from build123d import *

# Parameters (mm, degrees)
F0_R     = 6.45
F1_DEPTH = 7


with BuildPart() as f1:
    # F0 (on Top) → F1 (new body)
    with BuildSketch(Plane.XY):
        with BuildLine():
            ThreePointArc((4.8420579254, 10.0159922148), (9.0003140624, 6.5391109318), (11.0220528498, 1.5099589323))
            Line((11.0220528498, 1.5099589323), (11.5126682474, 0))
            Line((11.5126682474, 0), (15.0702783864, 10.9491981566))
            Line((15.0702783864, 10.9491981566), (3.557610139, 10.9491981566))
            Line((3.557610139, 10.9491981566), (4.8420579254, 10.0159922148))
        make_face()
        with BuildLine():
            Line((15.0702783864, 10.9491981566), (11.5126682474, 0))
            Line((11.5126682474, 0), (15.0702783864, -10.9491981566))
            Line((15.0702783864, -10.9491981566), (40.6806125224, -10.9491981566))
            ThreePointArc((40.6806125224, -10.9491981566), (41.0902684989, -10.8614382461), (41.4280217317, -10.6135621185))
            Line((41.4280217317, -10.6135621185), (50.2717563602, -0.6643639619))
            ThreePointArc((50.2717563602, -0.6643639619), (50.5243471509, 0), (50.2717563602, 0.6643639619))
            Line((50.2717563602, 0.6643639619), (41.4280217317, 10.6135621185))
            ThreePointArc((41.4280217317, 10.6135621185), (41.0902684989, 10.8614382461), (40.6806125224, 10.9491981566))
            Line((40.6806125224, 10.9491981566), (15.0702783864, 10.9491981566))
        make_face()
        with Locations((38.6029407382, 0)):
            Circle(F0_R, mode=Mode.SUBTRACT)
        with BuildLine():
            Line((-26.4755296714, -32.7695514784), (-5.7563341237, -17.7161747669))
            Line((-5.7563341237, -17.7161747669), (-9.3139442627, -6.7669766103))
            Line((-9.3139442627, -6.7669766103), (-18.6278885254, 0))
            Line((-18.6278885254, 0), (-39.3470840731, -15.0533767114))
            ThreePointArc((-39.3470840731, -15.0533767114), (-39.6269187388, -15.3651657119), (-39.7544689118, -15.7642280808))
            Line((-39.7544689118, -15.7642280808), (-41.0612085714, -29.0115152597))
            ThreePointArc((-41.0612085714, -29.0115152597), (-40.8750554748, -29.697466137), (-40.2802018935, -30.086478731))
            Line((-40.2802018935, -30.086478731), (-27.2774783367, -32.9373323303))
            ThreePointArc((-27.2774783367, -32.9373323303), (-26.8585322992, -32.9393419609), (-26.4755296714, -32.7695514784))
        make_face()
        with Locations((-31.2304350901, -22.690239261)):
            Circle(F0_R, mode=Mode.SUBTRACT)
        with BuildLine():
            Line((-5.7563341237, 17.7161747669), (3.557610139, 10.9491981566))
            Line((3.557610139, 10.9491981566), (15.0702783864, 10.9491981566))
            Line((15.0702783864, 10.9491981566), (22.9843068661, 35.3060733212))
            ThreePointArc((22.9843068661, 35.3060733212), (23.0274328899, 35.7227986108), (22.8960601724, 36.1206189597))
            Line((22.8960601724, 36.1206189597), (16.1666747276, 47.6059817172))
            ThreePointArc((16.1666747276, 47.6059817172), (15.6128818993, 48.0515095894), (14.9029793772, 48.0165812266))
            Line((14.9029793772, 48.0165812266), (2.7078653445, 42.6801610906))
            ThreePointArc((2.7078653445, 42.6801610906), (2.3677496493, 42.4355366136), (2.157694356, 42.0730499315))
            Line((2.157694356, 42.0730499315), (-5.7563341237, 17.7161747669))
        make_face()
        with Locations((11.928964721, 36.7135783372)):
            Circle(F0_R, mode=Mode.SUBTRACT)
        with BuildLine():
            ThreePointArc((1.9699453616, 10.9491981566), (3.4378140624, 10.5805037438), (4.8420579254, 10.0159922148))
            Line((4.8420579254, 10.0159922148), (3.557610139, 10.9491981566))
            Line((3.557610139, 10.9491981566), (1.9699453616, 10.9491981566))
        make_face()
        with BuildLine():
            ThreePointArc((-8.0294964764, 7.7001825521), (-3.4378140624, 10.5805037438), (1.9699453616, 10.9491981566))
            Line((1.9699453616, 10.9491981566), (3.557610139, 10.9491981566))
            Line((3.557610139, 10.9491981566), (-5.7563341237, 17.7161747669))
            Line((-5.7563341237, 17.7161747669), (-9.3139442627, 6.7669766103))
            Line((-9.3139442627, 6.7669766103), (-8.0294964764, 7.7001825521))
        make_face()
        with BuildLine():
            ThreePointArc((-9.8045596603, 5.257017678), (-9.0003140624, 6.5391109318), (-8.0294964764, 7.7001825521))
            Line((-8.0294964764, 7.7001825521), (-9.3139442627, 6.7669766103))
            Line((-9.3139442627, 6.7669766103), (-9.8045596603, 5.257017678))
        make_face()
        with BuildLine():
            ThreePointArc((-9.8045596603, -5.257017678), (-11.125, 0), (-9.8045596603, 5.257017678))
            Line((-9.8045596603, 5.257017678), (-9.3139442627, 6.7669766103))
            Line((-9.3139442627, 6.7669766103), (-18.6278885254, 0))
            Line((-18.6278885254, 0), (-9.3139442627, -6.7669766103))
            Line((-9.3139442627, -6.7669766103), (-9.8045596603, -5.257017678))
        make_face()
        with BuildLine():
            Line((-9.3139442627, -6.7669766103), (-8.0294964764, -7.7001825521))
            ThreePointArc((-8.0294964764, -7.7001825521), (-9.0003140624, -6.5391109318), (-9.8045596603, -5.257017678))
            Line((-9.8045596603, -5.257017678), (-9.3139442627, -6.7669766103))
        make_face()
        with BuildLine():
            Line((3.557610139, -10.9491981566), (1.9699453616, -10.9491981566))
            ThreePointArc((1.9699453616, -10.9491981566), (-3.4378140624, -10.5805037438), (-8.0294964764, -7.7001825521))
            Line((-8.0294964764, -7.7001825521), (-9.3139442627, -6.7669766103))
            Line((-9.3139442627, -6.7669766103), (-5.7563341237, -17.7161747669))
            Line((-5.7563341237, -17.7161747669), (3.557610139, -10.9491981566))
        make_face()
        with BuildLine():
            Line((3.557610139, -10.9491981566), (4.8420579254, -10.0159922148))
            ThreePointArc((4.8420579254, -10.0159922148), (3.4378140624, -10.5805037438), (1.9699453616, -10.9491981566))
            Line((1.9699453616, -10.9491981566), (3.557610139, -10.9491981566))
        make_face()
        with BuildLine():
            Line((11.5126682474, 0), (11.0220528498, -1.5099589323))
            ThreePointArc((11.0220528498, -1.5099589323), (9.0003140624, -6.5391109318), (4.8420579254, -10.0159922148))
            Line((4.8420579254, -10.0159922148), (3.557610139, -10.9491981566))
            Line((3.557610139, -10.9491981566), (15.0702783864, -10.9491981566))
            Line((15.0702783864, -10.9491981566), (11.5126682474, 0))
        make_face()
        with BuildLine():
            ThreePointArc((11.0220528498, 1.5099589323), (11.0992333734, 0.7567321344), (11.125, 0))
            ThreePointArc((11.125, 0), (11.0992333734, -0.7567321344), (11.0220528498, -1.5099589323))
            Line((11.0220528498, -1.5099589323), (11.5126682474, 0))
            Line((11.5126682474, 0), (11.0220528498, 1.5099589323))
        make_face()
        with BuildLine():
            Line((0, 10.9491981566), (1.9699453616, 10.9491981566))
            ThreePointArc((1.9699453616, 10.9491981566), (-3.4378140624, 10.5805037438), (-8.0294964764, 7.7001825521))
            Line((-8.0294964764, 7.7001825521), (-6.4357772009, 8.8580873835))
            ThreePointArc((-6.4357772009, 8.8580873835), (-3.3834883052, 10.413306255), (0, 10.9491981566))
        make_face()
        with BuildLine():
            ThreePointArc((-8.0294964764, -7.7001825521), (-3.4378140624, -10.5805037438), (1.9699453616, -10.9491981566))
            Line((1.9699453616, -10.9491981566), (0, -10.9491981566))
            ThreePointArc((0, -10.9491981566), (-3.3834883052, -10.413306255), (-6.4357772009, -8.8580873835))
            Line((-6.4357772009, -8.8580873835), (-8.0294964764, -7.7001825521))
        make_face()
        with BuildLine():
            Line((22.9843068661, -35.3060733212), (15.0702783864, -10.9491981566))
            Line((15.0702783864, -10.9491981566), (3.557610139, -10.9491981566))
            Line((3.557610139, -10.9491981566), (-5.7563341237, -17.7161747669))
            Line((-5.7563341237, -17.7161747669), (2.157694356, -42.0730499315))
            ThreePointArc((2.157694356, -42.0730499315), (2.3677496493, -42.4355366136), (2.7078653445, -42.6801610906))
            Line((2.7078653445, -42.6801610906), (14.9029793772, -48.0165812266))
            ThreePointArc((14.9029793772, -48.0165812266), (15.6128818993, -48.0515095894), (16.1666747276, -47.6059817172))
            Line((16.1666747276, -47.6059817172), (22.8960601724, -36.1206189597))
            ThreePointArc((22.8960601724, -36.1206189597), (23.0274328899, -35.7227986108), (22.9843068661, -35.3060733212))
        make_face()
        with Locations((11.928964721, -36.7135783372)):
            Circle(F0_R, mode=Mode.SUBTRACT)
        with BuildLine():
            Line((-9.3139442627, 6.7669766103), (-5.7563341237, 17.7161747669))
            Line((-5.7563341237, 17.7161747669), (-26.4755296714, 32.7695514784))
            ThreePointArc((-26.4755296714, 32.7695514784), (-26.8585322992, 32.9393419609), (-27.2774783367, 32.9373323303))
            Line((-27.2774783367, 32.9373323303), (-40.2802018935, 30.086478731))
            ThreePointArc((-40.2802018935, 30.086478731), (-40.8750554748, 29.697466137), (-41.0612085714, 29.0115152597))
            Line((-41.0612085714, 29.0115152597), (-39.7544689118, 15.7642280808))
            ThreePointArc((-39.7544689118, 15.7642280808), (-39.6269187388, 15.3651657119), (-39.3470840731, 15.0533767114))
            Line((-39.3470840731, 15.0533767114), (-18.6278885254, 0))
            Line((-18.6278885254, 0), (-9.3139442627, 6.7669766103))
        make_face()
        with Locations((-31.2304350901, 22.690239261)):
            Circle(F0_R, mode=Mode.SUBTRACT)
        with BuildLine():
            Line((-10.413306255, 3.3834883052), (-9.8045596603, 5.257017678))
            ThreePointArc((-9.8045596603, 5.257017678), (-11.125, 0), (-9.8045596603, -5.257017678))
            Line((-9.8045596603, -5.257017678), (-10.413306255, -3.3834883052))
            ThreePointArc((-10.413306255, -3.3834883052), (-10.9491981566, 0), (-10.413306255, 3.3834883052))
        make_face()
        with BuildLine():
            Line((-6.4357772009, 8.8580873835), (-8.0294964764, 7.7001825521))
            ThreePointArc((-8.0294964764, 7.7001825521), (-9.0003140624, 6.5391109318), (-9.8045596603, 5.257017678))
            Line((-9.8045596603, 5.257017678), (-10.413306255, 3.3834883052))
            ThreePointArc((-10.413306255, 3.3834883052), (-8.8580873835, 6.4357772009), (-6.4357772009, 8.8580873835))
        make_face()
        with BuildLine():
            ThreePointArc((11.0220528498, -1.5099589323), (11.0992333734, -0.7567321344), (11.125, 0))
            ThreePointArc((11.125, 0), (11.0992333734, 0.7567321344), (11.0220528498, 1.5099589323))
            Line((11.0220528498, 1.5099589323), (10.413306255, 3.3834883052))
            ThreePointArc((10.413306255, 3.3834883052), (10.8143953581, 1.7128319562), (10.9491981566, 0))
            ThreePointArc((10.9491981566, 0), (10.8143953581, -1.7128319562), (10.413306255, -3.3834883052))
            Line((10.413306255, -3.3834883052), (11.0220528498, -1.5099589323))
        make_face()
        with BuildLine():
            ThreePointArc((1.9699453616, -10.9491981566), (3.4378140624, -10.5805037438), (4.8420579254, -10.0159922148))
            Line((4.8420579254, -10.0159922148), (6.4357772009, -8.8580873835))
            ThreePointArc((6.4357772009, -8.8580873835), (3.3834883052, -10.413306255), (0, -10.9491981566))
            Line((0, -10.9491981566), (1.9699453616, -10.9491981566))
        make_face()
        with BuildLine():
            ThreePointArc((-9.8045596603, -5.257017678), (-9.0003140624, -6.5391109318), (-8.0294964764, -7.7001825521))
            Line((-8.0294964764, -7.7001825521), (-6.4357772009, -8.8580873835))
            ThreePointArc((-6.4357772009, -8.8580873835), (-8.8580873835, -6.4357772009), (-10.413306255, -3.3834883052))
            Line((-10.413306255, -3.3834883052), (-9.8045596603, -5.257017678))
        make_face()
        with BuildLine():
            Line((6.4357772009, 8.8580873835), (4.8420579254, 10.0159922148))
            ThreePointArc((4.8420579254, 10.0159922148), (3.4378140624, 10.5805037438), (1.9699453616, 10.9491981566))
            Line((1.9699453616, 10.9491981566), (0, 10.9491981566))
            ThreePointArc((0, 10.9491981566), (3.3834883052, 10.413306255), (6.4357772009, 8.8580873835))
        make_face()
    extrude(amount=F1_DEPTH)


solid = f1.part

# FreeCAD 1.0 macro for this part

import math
import FreeCAD as App
import Part
import Sketcher
Q = App.Units.Quantity

doc = App.newDocument("Part")
params = doc.addObject("Spreadsheet::Sheet", "Params")
for row, (alias, value) in enumerate([
    ("sketch1_radius", "1 mm"),
    ("sketch1_diameter", "12.9 mm"),
    ("pad1_length", "7 mm"),
], start=1):
    params.set(f"A{row}", alias)
    params.set(f"B{row}", "=" + value)
    params.setAlias(f"B{row}", alias)

body = doc.addObject("PartDesign::Body", "Body")

sketch1 = body.newObject("Sketcher::SketchObject", "Sketch")
sketch1.AttachmentSupport = (doc.getObject("XY_Plane"), [""])
sketch1.MapMode = "FlatFace"
sketch1.addGeometry([
    Part.LineSegment(App.Vector(16.166675, -47.605982, 0), App.Vector(22.89606, -36.120619, 0)),
    Part.ArcOfCircle(Part.Circle(App.Vector(22.03325, -35.61509, 0), App.Vector(0, 0, 1), 1), math.radians(-30.366451), math.radians(18)),
    Part.LineSegment(App.Vector(22.984307, -35.306073, 0), App.Vector(15.070278, -10.949198, 0)),
    Part.LineSegment(App.Vector(15.070278, -10.949198, 0), App.Vector(40.680613, -10.949198, 0)),
    Part.ArcOfCircle(Part.Circle(App.Vector(40.680613, -9.949198, 0), App.Vector(0, 0, 1), 1), math.radians(-90), math.radians(-41.633549)),
    Part.LineSegment(App.Vector(41.428022, -10.613562, 0), App.Vector(50.271756, -0.664364, 0)),
    Part.ArcOfCircle(Part.Circle(App.Vector(49.524347, 0, 0), App.Vector(0, 0, 1), 1), math.radians(-41.633549), math.radians(41.633549)),
    Part.LineSegment(App.Vector(50.271756, 0.664364, 0), App.Vector(41.428022, 10.613562, 0)),
    Part.ArcOfCircle(Part.Circle(App.Vector(40.680613, 9.949198, 0), App.Vector(0, 0, 1), 1), math.radians(41.633549), math.radians(90)),
    Part.LineSegment(App.Vector(40.680613, 10.949198, 0), App.Vector(15.070278, 10.949198, 0)),
    Part.LineSegment(App.Vector(15.070278, 10.949198, 0), App.Vector(22.984307, 35.306073, 0)),
    Part.ArcOfCircle(Part.Circle(App.Vector(22.03325, 35.61509, 0), App.Vector(0, 0, 1), 1), math.radians(-18), math.radians(30.366451)),
    Part.LineSegment(App.Vector(22.89606, 36.120619, 0), App.Vector(16.166675, 47.605982, 0)),
    Part.ArcOfCircle(Part.Circle(App.Vector(15.303865, 47.100453, 0), App.Vector(0, 0, 1), 1), math.radians(30.366451), math.radians(113.633549)),
    Part.LineSegment(App.Vector(14.902979, 48.016581, 0), App.Vector(2.707865, 42.680161, 0)),
    Part.ArcOfCircle(Part.Circle(App.Vector(3.108751, 41.764033, 0), App.Vector(0, 0, 1), 1), math.radians(113.633549), math.radians(162)),
    Part.LineSegment(App.Vector(2.157694, 42.07305, 0), App.Vector(-5.756334, 17.716175, 0)),
    Part.LineSegment(App.Vector(-5.756334, 17.716175, 0), App.Vector(-26.47553, 32.769551, 0)),
    Part.ArcOfCircle(Part.Circle(App.Vector(-27.063315, 31.960534, 0), App.Vector(0, 0, 1), 1), math.radians(54), math.radians(102.366451)),
    Part.LineSegment(App.Vector(-27.277478, 32.937332, 0), App.Vector(-40.280202, 30.086479, 0)),
    Part.ArcOfCircle(Part.Circle(App.Vector(-40.066038, 29.109681, 0), App.Vector(0, 0, 1), 1), math.radians(102.366451), math.radians(185.633549)),
    Part.LineSegment(App.Vector(-41.061209, 29.011515, 0), App.Vector(-39.754469, 15.764228, 0)),
    Part.ArcOfCircle(Part.Circle(App.Vector(-38.759299, 15.862394, 0), App.Vector(0, 0, 1), 1), math.radians(-174.366451), math.radians(-126)),
    Part.LineSegment(App.Vector(-39.347084, 15.053377, 0), App.Vector(-18.627889, 0, 0)),
    Part.LineSegment(App.Vector(-18.627889, 0, 0), App.Vector(-39.347084, -15.053377, 0)),
    Part.ArcOfCircle(Part.Circle(App.Vector(-38.759299, -15.862394, 0), App.Vector(0, 0, 1), 1), math.radians(126), math.radians(174.366451)),
    Part.LineSegment(App.Vector(-39.754469, -15.764228, 0), App.Vector(-41.061209, -29.011515, 0)),
    Part.ArcOfCircle(Part.Circle(App.Vector(-40.066038, -29.109681, 0), App.Vector(0, 0, 1), 1), math.radians(174.366451), math.radians(257.633549)),
    Part.LineSegment(App.Vector(-40.280202, -30.086479, 0), App.Vector(-27.277478, -32.937332, 0)),
    Part.ArcOfCircle(Part.Circle(App.Vector(-27.063315, -31.960534, 0), App.Vector(0, 0, 1), 1), math.radians(-102.366451), math.radians(-54)),
    Part.LineSegment(App.Vector(-26.47553, -32.769551, 0), App.Vector(-5.756334, -17.716175, 0)),
    Part.LineSegment(App.Vector(-5.756334, -17.716175, 0), App.Vector(2.157694, -42.07305, 0)),
    Part.ArcOfCircle(Part.Circle(App.Vector(3.108751, -41.764033, 0), App.Vector(0, 0, 1), 1), math.radians(-162), math.radians(-113.633549)),
    Part.LineSegment(App.Vector(2.707865, -42.680161, 0), App.Vector(14.902979, -48.016581, 0)),
    Part.ArcOfCircle(Part.Circle(App.Vector(15.303865, -47.100453, 0), App.Vector(0, 0, 1), 1), math.radians(-113.633549), math.radians(-30.366451)),
    Part.Circle(App.Vector(-31.230435, -22.690239, 0), App.Vector(0, 0, 1), 6.45),
    Part.LineSegment(App.Vector(4.842058, -10.015992, 0), App.Vector(6.435777, -8.858087, 0)),
    Part.ArcOfCircle(Part.Circle(App.Vector(0, 0, 0), App.Vector(0, 0, 1), 10.949198), math.radians(-90), math.radians(-54)),
    Part.ArcOfCircle(Part.Circle(App.Vector(0, 0, 0), App.Vector(0, 0, 1), 10.949198), math.radians(-126), math.radians(-90)),
    Part.ArcOfCircle(Part.Circle(App.Vector(0, 0, 0), App.Vector(0, 0, 1), 10.949198), math.radians(-162), math.radians(-126)),
    Part.ArcOfCircle(Part.Circle(App.Vector(0, 0, 0), App.Vector(0, 0, 1), 10.949198), math.radians(162), math.radians(198)),
    Part.ArcOfCircle(Part.Circle(App.Vector(0, 0, 0), App.Vector(0, 0, 1), 10.949198), math.radians(126), math.radians(162)),
    Part.ArcOfCircle(Part.Circle(App.Vector(0, 0, 0), App.Vector(0, 0, 1), 10.949198), math.radians(90), math.radians(126)),
    Part.ArcOfCircle(Part.Circle(App.Vector(0, 0, 0), App.Vector(0, 0, 1), 10.949198), math.radians(54), math.radians(90)),
    Part.LineSegment(App.Vector(6.435777, 8.858087, 0), App.Vector(4.842058, 10.015992, 0)),
    Part.ArcOfCircle(Part.Circle(App.Vector(0, 0, 0), App.Vector(0, 0, 1), 11.125), math.radians(7.80064), math.radians(64.19936)),
    Part.LineSegment(App.Vector(11.022053, 1.509959, 0), App.Vector(10.413306, 3.383488, 0)),
    Part.ArcOfCircle(Part.Circle(App.Vector(0, 0, 0), App.Vector(0, 0, 1), 10.949198), math.radians(0), math.radians(18)),
    Part.ArcOfCircle(Part.Circle(App.Vector(0, 0, 0), App.Vector(0, 0, 1), 10.949198), math.radians(-18), math.radians(0)),
    Part.LineSegment(App.Vector(10.413306, -3.383488, 0), App.Vector(11.022053, -1.509959, 0)),
    Part.ArcOfCircle(Part.Circle(App.Vector(0, 0, 0), App.Vector(0, 0, 1), 11.125), math.radians(-64.19936), math.radians(-7.80064)),
    Part.Circle(App.Vector(-31.230435, 22.690239, 0), App.Vector(0, 0, 1), 6.45),
    Part.Circle(App.Vector(38.602941, 0, 0), App.Vector(0, 0, 1), 6.45),
    Part.Circle(App.Vector(11.928965, 36.713578, 0), App.Vector(0, 0, 1), 6.45),
    Part.Circle(App.Vector(11.928965, -36.713578, 0), App.Vector(0, 0, 1), 6.45),
], False)
sketch1.addConstraint([
    Sketcher.Constraint("Tangent", 0, 2, 1, 1),
    Sketcher.Constraint("Tangent", 1, 2, 2, 1),
    Sketcher.Constraint("Coincident", 2, 2, 3, 1),
    Sketcher.Constraint("Tangent", 3, 2, 4, 1),
    Sketcher.Constraint("Tangent", 4, 2, 5, 1),
    Sketcher.Constraint("Tangent", 5, 2, 6, 1),
    Sketcher.Constraint("Tangent", 6, 2, 7, 1),
    Sketcher.Constraint("Tangent", 7, 2, 8, 1),
    Sketcher.Constraint("Tangent", 8, 2, 9, 1),
    Sketcher.Constraint("Coincident", 9, 2, 10, 1),
    Sketcher.Constraint("Tangent", 10, 2, 11, 1),
    Sketcher.Constraint("Tangent", 11, 2, 12, 1),
    Sketcher.Constraint("Tangent", 12, 2, 13, 1),
    Sketcher.Constraint("Tangent", 13, 2, 14, 1),
    Sketcher.Constraint("Tangent", 14, 2, 15, 1),
    Sketcher.Constraint("Tangent", 15, 2, 16, 1),
    Sketcher.Constraint("Coincident", 16, 2, 17, 1),
    Sketcher.Constraint("Tangent", 17, 2, 18, 1),
    Sketcher.Constraint("Tangent", 18, 2, 19, 1),
    Sketcher.Constraint("Tangent", 19, 2, 20, 1),
    Sketcher.Constraint("Tangent", 20, 2, 21, 1),
    Sketcher.Constraint("Tangent", 21, 2, 22, 1),
    Sketcher.Constraint("Tangent", 22, 2, 23, 1),
    Sketcher.Constraint("Coincident", 23, 2, 24, 1),
    Sketcher.Constraint("Tangent", 24, 2, 25, 1),
    Sketcher.Constraint("Tangent", 25, 2, 26, 1),
    Sketcher.Constraint("Tangent", 26, 2, 27, 1),
    Sketcher.Constraint("Tangent", 27, 2, 28, 1),
    Sketcher.Constraint("Tangent", 28, 2, 29, 1),
    Sketcher.Constraint("Tangent", 29, 2, 30, 1),
    Sketcher.Constraint("Coincident", 30, 2, 31, 1),
    Sketcher.Constraint("Tangent", 31, 2, 32, 1),
    Sketcher.Constraint("Tangent", 32, 2, 33, 1),
    Sketcher.Constraint("Tangent", 33, 2, 34, 1),
    Sketcher.Constraint("Tangent", 34, 2, 0, 1),
    Sketcher.Constraint("Tangent", 36, 2, 37, 2),
    Sketcher.Constraint("Tangent", 37, 1, 38, 2),
    Sketcher.Constraint("Tangent", 38, 1, 39, 2),
    Sketcher.Constraint("Tangent", 39, 1, 40, 2),
    Sketcher.Constraint("Tangent", 40, 1, 41, 2),
    Sketcher.Constraint("Tangent", 41, 1, 42, 2),
    Sketcher.Constraint("Tangent", 42, 1, 43, 2),
    Sketcher.Constraint("Tangent", 43, 1, 44, 1),
    Sketcher.Constraint("Coincident", 44, 2, 45, 2),
    Sketcher.Constraint("Coincident", 45, 1, 46, 1),
    Sketcher.Constraint("Tangent", 46, 2, 47, 2),
    Sketcher.Constraint("Tangent", 47, 1, 48, 2),
    Sketcher.Constraint("Tangent", 48, 1, 49, 1),
    Sketcher.Constraint("Coincident", 49, 2, 50, 2),
    Sketcher.Constraint("Coincident", 50, 1, 36, 1),
    Sketcher.Constraint("Horizontal", 3),
    Sketcher.Constraint("Horizontal", 9),
    Sketcher.Constraint("Coincident", 37, 3, -1, 1),
    Sketcher.Constraint("Coincident", 39, 3, -1, 1),
    Sketcher.Constraint("Coincident", 41, 3, -1, 1),
    Sketcher.Constraint("Coincident", 43, 3, -1, 1),
    Sketcher.Constraint("Coincident", 45, 3, -1, 1),
    Sketcher.Constraint("Coincident", 47, 3, -1, 1),
    Sketcher.Constraint("Coincident", 50, 3, -1, 1),
    Sketcher.Constraint("Equal", 1, 4),
    Sketcher.Constraint("Equal", 4, 6),
    Sketcher.Constraint("Equal", 6, 8),
    Sketcher.Constraint("Equal", 8, 11),
    Sketcher.Constraint("Equal", 11, 13),
    Sketcher.Constraint("Equal", 13, 15),
    Sketcher.Constraint("Equal", 15, 18),
    Sketcher.Constraint("Equal", 18, 20),
    Sketcher.Constraint("Equal", 20, 22),
    Sketcher.Constraint("Equal", 22, 25),
    Sketcher.Constraint("Equal", 25, 27),
    Sketcher.Constraint("Equal", 27, 29),
    Sketcher.Constraint("Equal", 29, 32),
    Sketcher.Constraint("Equal", 32, 34),
    Sketcher.Constraint("Equal", 43, 47),
    Sketcher.Constraint("Equal", 47, 48),
    Sketcher.Constraint("Equal", 45, 50),
    Sketcher.Constraint("Equal", 35, 51),
    Sketcher.Constraint("Equal", 51, 52),
    Sketcher.Constraint("Equal", 52, 53),
    Sketcher.Constraint("Equal", 53, 54),
    Sketcher.Constraint("Symmetric", 4, 3, 8, 3, -1),
    Sketcher.Constraint("Symmetric", 1, 3, 11, 3, -1),
    Sketcher.Constraint("Symmetric", 22, 3, 25, 3, -1),
    Sketcher.Constraint("Symmetric", 20, 3, 27, 3, -1),
    Sketcher.Constraint("Symmetric", 18, 3, 29, 3, -1),
    Sketcher.Constraint("Symmetric", 15, 3, 32, 3, -1),
    Sketcher.Constraint("Symmetric", 13, 3, 34, 3, -1),
    Sketcher.Constraint("Symmetric", 35, 3, 51, 3, -1),
    Sketcher.Constraint("Symmetric", 53, 3, 54, 3, -1),
    Sketcher.Constraint("Symmetric", 16, 2, 30, 2, -1),
    Sketcher.Constraint("PointOnObject", 6, 3, -1),
    Sketcher.Constraint("PointOnObject", 52, 3, -1),
    Sketcher.Constraint("PointOnObject", 23, 2, -1),
    Sketcher.Constraint("PointOnObject", 37, 1, -2),
    Sketcher.Constraint("PointOnObject", 42, 1, -2),
    Sketcher.Constraint("PointOnObject", 47, 1, -1),
    Sketcher.Constraint("Parallel", 10, 16),
    Sketcher.Constraint("Parallel", 17, 23),
    Sketcher.Constraint("Parallel", 2, 31),
    Sketcher.Constraint("Parallel", 30, 36),
    Sketcher.Constraint("Parallel", 23, 44),
    Sketcher.Constraint("Parallel", 31, 46),
    Sketcher.Constraint("Parallel", 16, 49),
    Sketcher.Constraint("Horizontal", 3, 2, 37, 1),
    Sketcher.Constraint("Horizontal", 36, 2, 38, 1),
    Sketcher.Constraint("Horizontal", 41, 1, 43, 1),
    Sketcher.Constraint("Horizontal", 40, 1, 46, 2),
    Sketcher.Constraint("Horizontal", 39, 1, 48, 1),
    Sketcher.Constraint("Equal", 0, 5),
    Sketcher.Constraint("Equal", 12, 14),
    Sketcher.Constraint("Equal", 10, 16),
    Sketcher.Constraint("Equal", 16, 17),
    Sketcher.Constraint("Equal", 14, 19),
    Sketcher.Constraint("Equal", 19, 21),
    Sketcher.Constraint("Equal", 17, 23),
    Sketcher.Constraint("Radius", 1, Q("1 mm")),
    Sketcher.Constraint("Diameter", 35, Q("12.9 mm")),
    Sketcher.Constraint("Angle", 2, Q("108 deg")),
    Sketcher.Constraint("Angle", 17, Q("144 deg")),
    Sketcher.Constraint("Radius", 45, Q("11.125 mm")),
    Sketcher.Constraint("Radius", 37, Q("10.949198 mm")),
    Sketcher.Constraint("DistanceX", 22, 3, -1, 1, Q("38.759299 mm")),
    Sketcher.Constraint("DistanceX", 19, 2, -1, 1, Q("40.280202 mm")),
    Sketcher.Constraint("Distance", 0, Q("13.311581 mm")),
    Sketcher.Constraint("DistanceX", 3, 1, 3, 2, Q("25.610334 mm")),
    Sketcher.Constraint("DistanceX", -1, 1, 1, 3, Q("22.03325 mm")),
    Sketcher.Constraint("DistanceY", 1, 3, -1, 1, Q("35.61509 mm")),
    Sketcher.Constraint("DistanceX", -1, 1, 15, 3, Q("3.108751 mm")),
    Sketcher.Constraint("DistanceY", 35, 3, -1, 1, Q("22.690239 mm")),
    Sketcher.Constraint("DistanceX", -1, 1, 52, 3, Q("38.602941 mm")),
    Sketcher.Constraint("DistanceY", -1, 1, 53, 3, Q("36.713578 mm")),
    Sketcher.Constraint("DistanceX", 35, 3, -1, 1, Q("31.230435 mm")),
    Sketcher.Constraint("DistanceX", -1, 1, 53, 3, Q("11.928965 mm")),
])
sketch1.setExpression("Constraints[115]", "Params.sketch1_radius")
sketch1.setExpression("Constraints[116]", "Params.sketch1_diameter")
pad1 = body.newObject("PartDesign::Pad", "Pad")
pad1.Profile = sketch1
pad1.setExpression("Length", "Params.pad1_length")

doc.recompute()
